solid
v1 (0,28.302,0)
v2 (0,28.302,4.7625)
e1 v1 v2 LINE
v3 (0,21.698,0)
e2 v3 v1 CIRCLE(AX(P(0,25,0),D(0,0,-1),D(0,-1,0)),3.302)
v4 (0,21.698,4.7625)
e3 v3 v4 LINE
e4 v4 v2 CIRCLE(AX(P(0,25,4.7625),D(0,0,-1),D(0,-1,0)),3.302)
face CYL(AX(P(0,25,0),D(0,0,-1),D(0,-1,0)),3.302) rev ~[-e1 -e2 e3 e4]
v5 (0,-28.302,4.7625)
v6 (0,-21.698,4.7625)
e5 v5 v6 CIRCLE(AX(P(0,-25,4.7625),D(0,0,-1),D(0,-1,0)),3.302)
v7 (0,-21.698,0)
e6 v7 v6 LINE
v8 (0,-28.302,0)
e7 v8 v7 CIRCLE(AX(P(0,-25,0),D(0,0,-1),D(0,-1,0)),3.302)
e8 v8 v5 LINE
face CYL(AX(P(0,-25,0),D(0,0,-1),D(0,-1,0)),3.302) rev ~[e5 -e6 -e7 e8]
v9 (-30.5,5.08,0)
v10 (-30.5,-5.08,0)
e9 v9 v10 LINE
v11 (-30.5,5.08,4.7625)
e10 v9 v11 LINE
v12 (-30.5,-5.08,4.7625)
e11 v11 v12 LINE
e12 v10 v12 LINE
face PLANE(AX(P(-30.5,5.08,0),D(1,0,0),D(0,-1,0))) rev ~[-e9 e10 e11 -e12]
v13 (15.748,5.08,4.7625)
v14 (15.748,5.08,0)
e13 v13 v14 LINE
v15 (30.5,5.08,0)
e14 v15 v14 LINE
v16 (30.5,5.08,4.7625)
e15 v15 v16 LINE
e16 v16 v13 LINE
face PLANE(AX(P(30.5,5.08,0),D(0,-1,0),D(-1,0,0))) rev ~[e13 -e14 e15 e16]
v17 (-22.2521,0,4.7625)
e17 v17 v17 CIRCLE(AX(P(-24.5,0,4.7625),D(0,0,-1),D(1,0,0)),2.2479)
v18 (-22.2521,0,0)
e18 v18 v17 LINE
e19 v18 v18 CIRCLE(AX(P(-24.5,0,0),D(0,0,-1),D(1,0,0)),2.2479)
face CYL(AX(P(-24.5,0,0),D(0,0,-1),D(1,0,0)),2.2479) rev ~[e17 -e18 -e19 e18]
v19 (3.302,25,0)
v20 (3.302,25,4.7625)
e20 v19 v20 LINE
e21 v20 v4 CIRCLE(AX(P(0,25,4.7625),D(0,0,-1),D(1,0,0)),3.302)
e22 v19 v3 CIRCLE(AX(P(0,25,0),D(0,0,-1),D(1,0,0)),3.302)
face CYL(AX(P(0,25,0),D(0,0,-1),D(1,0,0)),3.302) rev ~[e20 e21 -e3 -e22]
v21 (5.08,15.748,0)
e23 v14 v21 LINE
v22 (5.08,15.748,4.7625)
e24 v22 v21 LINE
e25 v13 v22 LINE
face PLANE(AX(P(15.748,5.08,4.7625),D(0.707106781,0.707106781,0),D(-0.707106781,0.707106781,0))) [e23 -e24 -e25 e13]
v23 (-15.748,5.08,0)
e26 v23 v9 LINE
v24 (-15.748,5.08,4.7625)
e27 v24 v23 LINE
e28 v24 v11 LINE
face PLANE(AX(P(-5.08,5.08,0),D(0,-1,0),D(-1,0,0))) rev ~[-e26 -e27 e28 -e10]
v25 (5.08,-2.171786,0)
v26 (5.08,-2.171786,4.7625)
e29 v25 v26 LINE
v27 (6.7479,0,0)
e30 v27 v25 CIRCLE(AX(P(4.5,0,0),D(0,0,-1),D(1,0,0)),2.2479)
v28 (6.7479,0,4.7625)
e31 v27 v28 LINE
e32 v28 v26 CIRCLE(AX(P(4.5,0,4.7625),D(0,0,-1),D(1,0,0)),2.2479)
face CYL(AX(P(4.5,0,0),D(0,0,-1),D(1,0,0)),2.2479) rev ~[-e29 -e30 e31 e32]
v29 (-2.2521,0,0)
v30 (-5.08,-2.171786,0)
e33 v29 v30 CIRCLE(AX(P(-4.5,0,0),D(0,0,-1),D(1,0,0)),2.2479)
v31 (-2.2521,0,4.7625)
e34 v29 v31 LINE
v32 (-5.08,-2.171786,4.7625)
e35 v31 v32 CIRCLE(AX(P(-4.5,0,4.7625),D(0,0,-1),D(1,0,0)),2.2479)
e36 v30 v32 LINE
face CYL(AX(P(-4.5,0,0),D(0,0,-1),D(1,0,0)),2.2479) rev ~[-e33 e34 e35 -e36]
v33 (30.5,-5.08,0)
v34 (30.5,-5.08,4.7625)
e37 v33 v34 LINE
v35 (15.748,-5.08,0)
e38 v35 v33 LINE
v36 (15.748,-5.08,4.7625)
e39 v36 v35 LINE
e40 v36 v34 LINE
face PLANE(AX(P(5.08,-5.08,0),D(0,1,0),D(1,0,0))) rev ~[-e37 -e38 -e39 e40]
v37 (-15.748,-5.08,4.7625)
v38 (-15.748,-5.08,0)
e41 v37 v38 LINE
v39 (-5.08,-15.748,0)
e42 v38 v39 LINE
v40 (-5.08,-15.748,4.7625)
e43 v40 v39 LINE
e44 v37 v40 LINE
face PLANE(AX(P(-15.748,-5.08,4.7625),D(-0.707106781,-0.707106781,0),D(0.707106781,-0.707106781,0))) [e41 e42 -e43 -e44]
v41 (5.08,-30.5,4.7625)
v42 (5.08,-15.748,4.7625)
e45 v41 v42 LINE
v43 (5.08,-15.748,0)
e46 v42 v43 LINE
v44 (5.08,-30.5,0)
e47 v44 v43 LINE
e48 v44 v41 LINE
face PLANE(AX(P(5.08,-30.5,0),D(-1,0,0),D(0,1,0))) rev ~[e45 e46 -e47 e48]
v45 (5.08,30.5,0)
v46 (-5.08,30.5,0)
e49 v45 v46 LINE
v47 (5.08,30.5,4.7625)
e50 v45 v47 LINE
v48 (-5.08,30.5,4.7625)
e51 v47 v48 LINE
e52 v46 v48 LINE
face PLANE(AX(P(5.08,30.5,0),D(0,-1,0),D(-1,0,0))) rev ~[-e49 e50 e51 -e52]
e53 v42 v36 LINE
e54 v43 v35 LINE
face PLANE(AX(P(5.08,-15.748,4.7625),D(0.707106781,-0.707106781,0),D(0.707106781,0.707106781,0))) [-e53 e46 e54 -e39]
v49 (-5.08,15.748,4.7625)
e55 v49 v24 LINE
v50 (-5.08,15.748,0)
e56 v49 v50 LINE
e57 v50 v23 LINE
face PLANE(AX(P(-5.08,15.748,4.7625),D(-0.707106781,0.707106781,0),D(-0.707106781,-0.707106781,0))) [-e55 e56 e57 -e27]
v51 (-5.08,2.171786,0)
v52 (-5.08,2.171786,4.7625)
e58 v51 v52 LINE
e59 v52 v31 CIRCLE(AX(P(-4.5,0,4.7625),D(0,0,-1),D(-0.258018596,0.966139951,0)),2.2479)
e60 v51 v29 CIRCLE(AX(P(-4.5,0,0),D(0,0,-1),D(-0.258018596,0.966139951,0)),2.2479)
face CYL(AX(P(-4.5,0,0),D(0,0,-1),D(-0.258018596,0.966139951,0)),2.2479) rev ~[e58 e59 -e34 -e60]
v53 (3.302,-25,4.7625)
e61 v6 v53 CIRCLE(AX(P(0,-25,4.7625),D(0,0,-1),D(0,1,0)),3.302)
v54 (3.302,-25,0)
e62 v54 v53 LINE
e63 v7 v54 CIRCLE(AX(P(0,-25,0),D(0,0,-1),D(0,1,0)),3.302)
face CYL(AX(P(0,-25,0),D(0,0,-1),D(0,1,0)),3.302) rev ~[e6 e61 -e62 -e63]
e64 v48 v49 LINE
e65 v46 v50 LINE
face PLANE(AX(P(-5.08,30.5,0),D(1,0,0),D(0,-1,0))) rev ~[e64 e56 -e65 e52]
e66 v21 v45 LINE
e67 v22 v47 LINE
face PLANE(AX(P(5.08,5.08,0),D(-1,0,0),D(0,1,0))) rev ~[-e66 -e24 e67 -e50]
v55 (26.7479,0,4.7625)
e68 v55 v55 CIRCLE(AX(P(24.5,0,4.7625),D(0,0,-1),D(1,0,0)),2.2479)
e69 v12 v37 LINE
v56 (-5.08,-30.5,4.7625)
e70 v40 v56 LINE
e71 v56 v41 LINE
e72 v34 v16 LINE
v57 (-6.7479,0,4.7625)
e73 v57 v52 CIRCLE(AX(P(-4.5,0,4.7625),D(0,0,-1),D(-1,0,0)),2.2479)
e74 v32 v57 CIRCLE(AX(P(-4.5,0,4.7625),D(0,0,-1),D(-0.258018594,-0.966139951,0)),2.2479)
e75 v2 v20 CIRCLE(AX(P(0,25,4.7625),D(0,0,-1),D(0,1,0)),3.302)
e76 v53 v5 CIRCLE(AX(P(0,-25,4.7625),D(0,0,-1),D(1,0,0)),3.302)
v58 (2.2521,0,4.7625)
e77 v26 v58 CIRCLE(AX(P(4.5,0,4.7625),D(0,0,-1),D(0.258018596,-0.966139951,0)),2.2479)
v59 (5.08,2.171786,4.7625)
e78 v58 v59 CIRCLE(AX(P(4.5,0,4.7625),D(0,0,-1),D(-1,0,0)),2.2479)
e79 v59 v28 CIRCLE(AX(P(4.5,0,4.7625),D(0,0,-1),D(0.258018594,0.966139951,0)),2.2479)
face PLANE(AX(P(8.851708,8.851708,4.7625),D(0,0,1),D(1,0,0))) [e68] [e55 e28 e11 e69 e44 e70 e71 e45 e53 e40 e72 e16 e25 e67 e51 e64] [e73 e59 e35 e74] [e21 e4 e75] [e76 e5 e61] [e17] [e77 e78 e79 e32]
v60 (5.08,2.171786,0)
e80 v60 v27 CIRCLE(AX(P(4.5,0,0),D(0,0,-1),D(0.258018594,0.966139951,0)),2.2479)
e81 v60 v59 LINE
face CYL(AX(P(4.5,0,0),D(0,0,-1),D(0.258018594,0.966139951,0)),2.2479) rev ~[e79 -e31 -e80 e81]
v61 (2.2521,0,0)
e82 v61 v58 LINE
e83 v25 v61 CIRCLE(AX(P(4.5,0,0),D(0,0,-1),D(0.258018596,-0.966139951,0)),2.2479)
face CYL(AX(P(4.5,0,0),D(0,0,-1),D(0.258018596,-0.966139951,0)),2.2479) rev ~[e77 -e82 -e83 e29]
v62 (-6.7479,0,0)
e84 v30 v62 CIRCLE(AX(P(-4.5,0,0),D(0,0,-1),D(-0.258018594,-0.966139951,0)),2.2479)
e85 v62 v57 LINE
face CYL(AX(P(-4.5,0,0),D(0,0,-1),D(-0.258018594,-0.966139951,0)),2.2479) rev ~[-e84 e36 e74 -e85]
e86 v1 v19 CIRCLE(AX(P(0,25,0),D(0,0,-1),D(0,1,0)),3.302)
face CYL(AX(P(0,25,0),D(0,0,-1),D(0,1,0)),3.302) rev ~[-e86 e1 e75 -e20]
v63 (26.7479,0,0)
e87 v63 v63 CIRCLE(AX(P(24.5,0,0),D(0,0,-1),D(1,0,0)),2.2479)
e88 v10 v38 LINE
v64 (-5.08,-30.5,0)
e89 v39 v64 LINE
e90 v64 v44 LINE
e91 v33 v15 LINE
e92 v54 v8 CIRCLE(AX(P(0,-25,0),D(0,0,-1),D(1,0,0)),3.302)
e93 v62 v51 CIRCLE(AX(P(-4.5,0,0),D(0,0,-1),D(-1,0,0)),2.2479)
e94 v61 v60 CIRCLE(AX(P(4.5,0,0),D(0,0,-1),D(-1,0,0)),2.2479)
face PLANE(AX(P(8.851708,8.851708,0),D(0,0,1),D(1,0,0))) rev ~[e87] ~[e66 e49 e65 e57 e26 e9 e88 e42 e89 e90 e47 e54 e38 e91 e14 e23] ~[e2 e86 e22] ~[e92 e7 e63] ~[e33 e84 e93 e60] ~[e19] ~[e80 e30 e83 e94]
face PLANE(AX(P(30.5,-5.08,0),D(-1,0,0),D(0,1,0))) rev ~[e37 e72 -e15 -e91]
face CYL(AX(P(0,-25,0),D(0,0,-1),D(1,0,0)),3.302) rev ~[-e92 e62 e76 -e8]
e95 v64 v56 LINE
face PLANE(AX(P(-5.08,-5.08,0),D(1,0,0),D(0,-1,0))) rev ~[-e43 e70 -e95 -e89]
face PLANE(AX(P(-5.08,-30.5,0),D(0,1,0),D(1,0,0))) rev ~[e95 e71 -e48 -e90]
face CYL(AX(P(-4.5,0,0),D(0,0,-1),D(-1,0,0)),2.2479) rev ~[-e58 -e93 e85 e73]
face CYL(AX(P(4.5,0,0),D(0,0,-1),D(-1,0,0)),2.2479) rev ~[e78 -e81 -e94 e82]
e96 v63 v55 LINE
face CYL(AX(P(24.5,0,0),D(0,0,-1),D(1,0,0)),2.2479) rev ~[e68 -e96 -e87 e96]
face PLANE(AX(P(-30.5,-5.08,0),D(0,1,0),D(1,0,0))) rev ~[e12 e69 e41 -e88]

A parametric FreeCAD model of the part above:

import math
import FreeCAD as App
import Part
import Sketcher
Q = App.Units.Quantity

doc = App.newDocument("Part")
body = doc.addObject("PartDesign::Body", "Body")

sketch1 = body.newObject("Sketcher::SketchObject", "Sketch")
sketch1.AttachmentSupport = (doc.getObject("XY_Plane"), [""])
sketch1.MapMode = "FlatFace"
sketch1.addGeometry(Part.LineSegment(App.Vector(-5.1, 30.5, 0), App.Vector(-5.1, 5.1, 0)), False)
sketch1.addGeometry(Part.LineSegment(App.Vector(-5.1, 5.1, 0), App.Vector(-30.5, 5.1, 0)), False)
sketch1.addGeometry(Part.LineSegment(App.Vector(-30.5, 5.1, 0), App.Vector(-30.5, -5.1, 0)), False)
sketch1.addGeometry(Part.LineSegment(App.Vector(-30.5, -5.1, 0), App.Vector(-5.1, -5.1, 0)), False)
sketch1.addGeometry(Part.LineSegment(App.Vector(-5.1, -5.1, 0), App.Vector(-5.1, -30.5, 0)), False)
sketch1.addGeometry(Part.LineSegment(App.Vector(-5.1, -30.5, 0), App.Vector(5.1, -30.5, 0)), False)
sketch1.addGeometry(Part.LineSegment(App.Vector(5.1, -30.5, 0), App.Vector(5.1, -5.1, 0)), False)
sketch1.addGeometry(Part.LineSegment(App.Vector(5.1, -5.1, 0), App.Vector(30.5, -5.1, 0)), False)
sketch1.addGeometry(Part.LineSegment(App.Vector(30.5, -5.1, 0), App.Vector(30.5, 5.1, 0)), False)
sketch1.addGeometry(Part.LineSegment(App.Vector(30.5, 5.1, 0), App.Vector(5.1, 5.1, 0)), False)
sketch1.addGeometry(Part.LineSegment(App.Vector(5.1, 5.1, 0), App.Vector(5.1, 30.5, 0)), False)
sketch1.addGeometry(Part.LineSegment(App.Vector(5.1, 30.5, 0), App.Vector(-5.1, 30.5, 0)), False)
sketch1.addGeometry(Part.ArcOfCircle(Part.Circle(App.Vector(0, -25, 0), App.Vector(0, 0, 1), 3.3), math.radians(90), math.radians(270)), False)
sketch1.addGeometry(Part.ArcOfCircle(Part.Circle(App.Vector(0, -25, 0), App.Vector(0, 0, 1), 3.3), math.radians(0), math.radians(90)), False)
sketch1.addGeometry(Part.ArcOfCircle(Part.Circle(App.Vector(0, -25, 0), App.Vector(0, 0, 1), 3.3), math.radians(-90), math.radians(0)), False)
sketch1.addGeometry(Part.Circle(App.Vector(-24.5, 0, 0), App.Vector(0, 0, 1), 2.2), False)
sketch1.addGeometry(Part.ArcOfCircle(Part.Circle(App.Vector(-4.5, 0, 0), App.Vector(0, 0, 1), 2.2), math.radians(105), math.radians(180)), False)
sketch1.addGeometry(Part.ArcOfCircle(Part.Circle(App.Vector(-4.5, 0, 0), App.Vector(0, 0, 1), 2.2), math.radians(0), math.radians(105)), False)
sketch1.addGeometry(Part.ArcOfCircle(Part.Circle(App.Vector(-4.5, 0, 0), App.Vector(0, 0, 1), 2.2), math.radians(-105), math.radians(0)), False)
sketch1.addGeometry(Part.ArcOfCircle(Part.Circle(App.Vector(-4.5, 0, 0), App.Vector(0, 0, 1), 2.2), math.radians(180), math.radians(255)), False)
sketch1.addGeometry(Part.ArcOfCircle(Part.Circle(App.Vector(0, 25, 0), App.Vector(0, 0, 1), 3.3), math.radians(90), math.radians(270)), False)
sketch1.addGeometry(Part.ArcOfCircle(Part.Circle(App.Vector(0, 25, 0), App.Vector(0, 0, 1), 3.3), math.radians(0), math.radians(90)), False)
sketch1.addGeometry(Part.ArcOfCircle(Part.Circle(App.Vector(0, 25, 0), App.Vector(0, 0, 1), 3.3), math.radians(-90), math.radians(0)), False)
sketch1.addGeometry(Part.ArcOfCircle(Part.Circle(App.Vector(4.5, 0, 0), App.Vector(0, 0, 1), 2.2), math.radians(75), math.radians(180)), False)
sketch1.addGeometry(Part.ArcOfCircle(Part.Circle(App.Vector(4.5, 0, 0), App.Vector(0, 0, 1), 2.2), math.radians(0), math.radians(75)), False)
sketch1.addGeometry(Part.ArcOfCircle(Part.Circle(App.Vector(4.5, 0, 0), App.Vector(0, 0, 1), 2.2), math.radians(-75), math.radians(0)), False)
sketch1.addGeometry(Part.ArcOfCircle(Part.Circle(App.Vector(4.5, 0, 0), App.Vector(0, 0, 1), 2.2), math.radians(180), math.radians(285)), False)
sketch1.addGeometry(Part.Circle(App.Vector(24.5, 0, 0), App.Vector(0, 0, 1), 2.2), False)
sketch1.addConstraint(Sketcher.Constraint("Coincident", 0, 2, 1, 1))
sketch1.addConstraint(Sketcher.Constraint("Coincident", 1, 2, 2, 1))
sketch1.addConstraint(Sketcher.Constraint("Coincident", 2, 2, 3, 1))
sketch1.addConstraint(Sketcher.Constraint("Coincident", 3, 2, 4, 1))
sketch1.addConstraint(Sketcher.Constraint("Coincident", 4, 2, 5, 1))
sketch1.addConstraint(Sketcher.Constraint("Coincident", 5, 2, 6, 1))
sketch1.addConstraint(Sketcher.Constraint("Coincident", 6, 2, 7, 1))
sketch1.addConstraint(Sketcher.Constraint("Coincident", 7, 2, 8, 1))
sketch1.addConstraint(Sketcher.Constraint("Coincident", 8, 2, 9, 1))
sketch1.addConstraint(Sketcher.Constraint("Coincident", 9, 2, 10, 1))
sketch1.addConstraint(Sketcher.Constraint("Coincident", 10, 2, 11, 1))
sketch1.addConstraint(Sketcher.Constraint("Coincident", 11, 2, 0, 1))
sketch1.addConstraint(Sketcher.Constraint("Tangent", 12, 1, 13, 2))
sketch1.addConstraint(Sketcher.Constraint("Tangent", 13, 1, 14, 2))
sketch1.addConstraint(Sketcher.Constraint("Tangent", 14, 1, 12, 2))
sketch1.addConstraint(Sketcher.Constraint("Tangent", 16, 1, 17, 2))
sketch1.addConstraint(Sketcher.Constraint("Tangent", 17, 1, 18, 2))
sketch1.addConstraint(Sketcher.Constraint("Tangent", 18, 1, 19, 2))
sketch1.addConstraint(Sketcher.Constraint("Tangent", 19, 1, 16, 2))
sketch1.addConstraint(Sketcher.Constraint("Tangent", 20, 1, 21, 2))
sketch1.addConstraint(Sketcher.Constraint("Tangent", 21, 1, 22, 2))
sketch1.addConstraint(Sketcher.Constraint("Tangent", 22, 1, 20, 2))
sketch1.addConstraint(Sketcher.Constraint("Tangent", 23, 1, 24, 2))
sketch1.addConstraint(Sketcher.Constraint("Tangent", 24, 1, 25, 2))
sketch1.addConstraint(Sketcher.Constraint("Tangent", 25, 1, 26, 2))
sketch1.addConstraint(Sketcher.Constraint("Tangent", 26, 1, 23, 2))
sketch1.addConstraint(Sketcher.Constraint("Vertical", 0))
sketch1.addConstraint(Sketcher.Constraint("Horizontal", 1))
sketch1.addConstraint(Sketcher.Constraint("Vertical", 2))
sketch1.addConstraint(Sketcher.Constraint("Horizontal", 3))
sketch1.addConstraint(Sketcher.Constraint("Vertical", 4))
sketch1.addConstraint(Sketcher.Constraint("Horizontal", 5))
sketch1.addConstraint(Sketcher.Constraint("Vertical", 6))
sketch1.addConstraint(Sketcher.Constraint("Horizontal", 7))
sketch1.addConstraint(Sketcher.Constraint("Vertical", 8))
sketch1.addConstraint(Sketcher.Constraint("Horizontal", 9))
sketch1.addConstraint(Sketcher.Constraint("Vertical", 10))
sketch1.addConstraint(Sketcher.Constraint("Horizontal", 11))
sketch1.addConstraint(Sketcher.Constraint("Equal", 15, 16))
sketch1.addConstraint(Sketcher.Constraint("Equal", 16, 17))
sketch1.addConstraint(Sketcher.Constraint("Equal", 14, 20))
sketch1.addConstraint(Sketcher.Constraint("Equal", 19, 23))
sketch1.addConstraint(Sketcher.Constraint("Equal", 23, 24))
sketch1.addConstraint(Sketcher.Constraint("Equal", 26, 27))
sketch1.addConstraint(Sketcher.Constraint("Symmetric", 12, 3, 20, 3, -1, 1))
sketch1.addConstraint(Sketcher.Constraint("Symmetric", 16, 3, 23, 3, -1, 1))
sketch1.addConstraint(Sketcher.Constraint("Symmetric", 15, 3, 27, 3, -1, 1))
sketch1.addConstraint(Sketcher.Constraint("Symmetric", 0, 2, 6, 2, -1, 1))
sketch1.addConstraint(Sketcher.Constraint("Symmetric", 2, 2, 8, 2, -1, 1))
sketch1.addConstraint(Sketcher.Constraint("Symmetric", 4, 2, 10, 2, -1, 1))
sketch1.addConstraint(Sketcher.Constraint("Symmetric", 3, 2, 6, 2, -2))
sketch1.addConstraint(Sketcher.Constraint("Symmetric", 16, 1, 23, 1, -2))
sketch1.addConstraint(Sketcher.Constraint("Symmetric", 13, 1, 21, 1, -1))
sketch1.addConstraint(Sketcher.Constraint("PointOnObject", 15, 3, -1))
sketch1.addConstraint(Sketcher.Constraint("PointOnObject", 12, 1, -2))
sketch1.addConstraint(Sketcher.Constraint("PointOnObject", 14, 1, -2))
sketch1.addConstraint(Sketcher.Constraint("PointOnObject", 17, 1, -1))
sketch1.addConstraint(Sketcher.Constraint("PointOnObject", 19, 1, -1))
sketch1.addConstraint(Sketcher.Constraint("PointOnObject", 20, 1, -2))
sketch1.addConstraint(Sketcher.Constraint("PointOnObject", 22, 1, -2))
sketch1.addConstraint(Sketcher.Constraint("PointOnObject", 24, 1, -1))
sketch1.addConstraint(Sketcher.Constraint("PointOnObject", 26, 1, -1))
sketch1.addConstraint(Sketcher.Constraint("Horizontal", 14, 3, 13, 1))
sketch1.addConstraint(Sketcher.Constraint("Horizontal", 18, 1, 25, 1))
sketch1.addConstraint(Sketcher.Constraint("Vertical", 11, 2, 16, 1))
sketch1.addConstraint(Sketcher.Constraint("Vertical", 16, 1, 18, 1))
sketch1.addConstraint(Sketcher.Constraint("Equal", 9, 0))
sketch1.addConstraint(Sketcher.Constraint("Equal", 11, 2))
sketch1.addConstraint(Sketcher.Constraint("Radius", 12, Q("0.13 in")))
sketch1.addConstraint(Sketcher.Constraint("Diameter", 15, Q("0.177 in")))
sketch1.addConstraint(Sketcher.Constraint("DistanceX", 5, 1, 5, 2, Q("0.4 in")))
sketch1.addConstraint(Sketcher.Constraint("DistanceX", 1, 2, 1, 1, Q("25.42 mm")))
sketch1.addConstraint(Sketcher.Constraint("DistanceY", 12, 3, -1, 1, Q("25 mm")))
sketch1.addConstraint(Sketcher.Constraint("DistanceX", 15, 3, -1, 1, Q("24.5 mm")))
sketch1.addConstraint(Sketcher.Constraint("DistanceX", 16, 3, -1, 1, Q("4.5 mm")))
pad1 = body.newObject("PartDesign::Pad", "Pad")
pad1.Profile = sketch1
pad1.Length = Q("0.1875 in")

sketch2 = body.newObject("Sketcher::SketchObject", "Sketch001")
sketch2.AttachmentSupport = (doc.getObject("XY_Plane"), [""])
sketch2.MapMode = "FlatFace"
sketch2.AttachmentOffset = App.Placement(App.Vector(0, 0, 0.1875 * 25.4), App.Rotation())
sketch2.addGeometry(Part.LineSegment(App.Vector(5, 5, 0), App.Vector(16, 5, 0)), False)
sketch2.addGeometry(Part.LineSegment(App.Vector(16, 5, 0), App.Vector(5, 16, 0)), False)
sketch2.addGeometry(Part.LineSegment(App.Vector(5, 16, 0), App.Vector(5, 5, 0)), False)
sketch2.addGeometry(Part.LineSegment(App.Vector(5, -5, 0), App.Vector(5, -16, 0)), False)
sketch2.addGeometry(Part.LineSegment(App.Vector(5, -16, 0), App.Vector(16, -5, 0)), False)
sketch2.addGeometry(Part.LineSegment(App.Vector(16, -5, 0), App.Vector(5, -5, 0)), False)
sketch2.addGeometry(Part.LineSegment(App.Vector(-5, -5, 0), App.Vector(-16, -5, 0)), False)
sketch2.addGeometry(Part.LineSegment(App.Vector(-16, -5, 0), App.Vector(-5, -16, 0)), False)
sketch2.addGeometry(Part.LineSegment(App.Vector(-5, -16, 0), App.Vector(-5, -5, 0)), False)
sketch2.addGeometry(Part.LineSegment(App.Vector(-16, 5, 0), App.Vector(-5, 5, 0)), False)
sketch2.addGeometry(Part.LineSegment(App.Vector(-5, 5, 0), App.Vector(-5, 16, 0)), False)
sketch2.addGeometry(Part.LineSegment(App.Vector(-5, 16, 0), App.Vector(-16, 5, 0)), False)
sketch2.addConstraint(Sketcher.Constraint("Coincident", 0, 2, 1, 1))
sketch2.addConstraint(Sketcher.Constraint("Coincident", 1, 2, 2, 1))
sketch2.addConstraint(Sketcher.Constraint("Coincident", 2, 2, 0, 1))
sketch2.addConstraint(Sketcher.Constraint("Coincident", 3, 2, 4, 1))
sketch2.addConstraint(Sketcher.Constraint("Coincident", 4, 2, 5, 1))
sketch2.addConstraint(Sketcher.Constraint("Coincident", 5, 2, 3, 1))
sketch2.addConstraint(Sketcher.Constraint("Coincident", 6, 2, 7, 1))
sketch2.addConstraint(Sketcher.Constraint("Coincident", 7, 2, 8, 1))
sketch2.addConstraint(Sketcher.Constraint("Coincident", 8, 2, 6, 1))
sketch2.addConstraint(Sketcher.Constraint("Coincident", 9, 2, 10, 1))
sketch2.addConstraint(Sketcher.Constraint("Coincident", 10, 2, 11, 1))
sketch2.addConstraint(Sketcher.Constraint("Coincident", 11, 2, 9, 1))
sketch2.addConstraint(Sketcher.Constraint("Horizontal", 0))
sketch2.addConstraint(Sketcher.Constraint("Vertical", 2))
sketch2.addConstraint(Sketcher.Constraint("Vertical", 3))
sketch2.addConstraint(Sketcher.Constraint("Horizontal", 5))
sketch2.addConstraint(Sketcher.Constraint("Horizontal", 6))
sketch2.addConstraint(Sketcher.Constraint("Vertical", 8))
sketch2.addConstraint(Sketcher.Constraint("Horizontal", 9))
sketch2.addConstraint(Sketcher.Constraint("Vertical", 10))
sketch2.addConstraint(Sketcher.Constraint("Symmetric", 0, 2, 6, 2, -1, 1))
sketch2.addConstraint(Sketcher.Constraint("Symmetric", 1, 2, 7, 2, -1, 1))
sketch2.addConstraint(Sketcher.Constraint("Symmetric", 5, 2, 9, 2, -1, 1))
sketch2.addConstraint(Sketcher.Constraint("Symmetric", 4, 2, 6, 2, -2))
sketch2.addConstraint(Sketcher.Constraint("Symmetric", 3, 2, 7, 2, -2))
sketch2.addConstraint(Sketcher.Constraint("Perpendicular", 1, 4))
sketch2.addConstraint(Sketcher.Constraint("Perpendicular", 7, 11))
sketch2.addConstraint(Sketcher.Constraint("Horizontal", 1, 2, 10, 2))
sketch2.addConstraint(Sketcher.Constraint("DistanceX", 0, 1, 0, 2, Q("0.42 in")))
sketch2.addConstraint(Sketcher.Constraint("DistanceY", -1, 1, 0, 2, Q("0.2 in")))
sketch2.addConstraint(Sketcher.Constraint("DistanceX", -1, 1, 1, 2, Q("0.2 in")))
pad2 = body.newObject("PartDesign::Pad", "Pad001")
pad2.Profile = sketch2
pad2.Length = Q("0.1875 in")
pad2.Reversed = True

doc.recompute()
